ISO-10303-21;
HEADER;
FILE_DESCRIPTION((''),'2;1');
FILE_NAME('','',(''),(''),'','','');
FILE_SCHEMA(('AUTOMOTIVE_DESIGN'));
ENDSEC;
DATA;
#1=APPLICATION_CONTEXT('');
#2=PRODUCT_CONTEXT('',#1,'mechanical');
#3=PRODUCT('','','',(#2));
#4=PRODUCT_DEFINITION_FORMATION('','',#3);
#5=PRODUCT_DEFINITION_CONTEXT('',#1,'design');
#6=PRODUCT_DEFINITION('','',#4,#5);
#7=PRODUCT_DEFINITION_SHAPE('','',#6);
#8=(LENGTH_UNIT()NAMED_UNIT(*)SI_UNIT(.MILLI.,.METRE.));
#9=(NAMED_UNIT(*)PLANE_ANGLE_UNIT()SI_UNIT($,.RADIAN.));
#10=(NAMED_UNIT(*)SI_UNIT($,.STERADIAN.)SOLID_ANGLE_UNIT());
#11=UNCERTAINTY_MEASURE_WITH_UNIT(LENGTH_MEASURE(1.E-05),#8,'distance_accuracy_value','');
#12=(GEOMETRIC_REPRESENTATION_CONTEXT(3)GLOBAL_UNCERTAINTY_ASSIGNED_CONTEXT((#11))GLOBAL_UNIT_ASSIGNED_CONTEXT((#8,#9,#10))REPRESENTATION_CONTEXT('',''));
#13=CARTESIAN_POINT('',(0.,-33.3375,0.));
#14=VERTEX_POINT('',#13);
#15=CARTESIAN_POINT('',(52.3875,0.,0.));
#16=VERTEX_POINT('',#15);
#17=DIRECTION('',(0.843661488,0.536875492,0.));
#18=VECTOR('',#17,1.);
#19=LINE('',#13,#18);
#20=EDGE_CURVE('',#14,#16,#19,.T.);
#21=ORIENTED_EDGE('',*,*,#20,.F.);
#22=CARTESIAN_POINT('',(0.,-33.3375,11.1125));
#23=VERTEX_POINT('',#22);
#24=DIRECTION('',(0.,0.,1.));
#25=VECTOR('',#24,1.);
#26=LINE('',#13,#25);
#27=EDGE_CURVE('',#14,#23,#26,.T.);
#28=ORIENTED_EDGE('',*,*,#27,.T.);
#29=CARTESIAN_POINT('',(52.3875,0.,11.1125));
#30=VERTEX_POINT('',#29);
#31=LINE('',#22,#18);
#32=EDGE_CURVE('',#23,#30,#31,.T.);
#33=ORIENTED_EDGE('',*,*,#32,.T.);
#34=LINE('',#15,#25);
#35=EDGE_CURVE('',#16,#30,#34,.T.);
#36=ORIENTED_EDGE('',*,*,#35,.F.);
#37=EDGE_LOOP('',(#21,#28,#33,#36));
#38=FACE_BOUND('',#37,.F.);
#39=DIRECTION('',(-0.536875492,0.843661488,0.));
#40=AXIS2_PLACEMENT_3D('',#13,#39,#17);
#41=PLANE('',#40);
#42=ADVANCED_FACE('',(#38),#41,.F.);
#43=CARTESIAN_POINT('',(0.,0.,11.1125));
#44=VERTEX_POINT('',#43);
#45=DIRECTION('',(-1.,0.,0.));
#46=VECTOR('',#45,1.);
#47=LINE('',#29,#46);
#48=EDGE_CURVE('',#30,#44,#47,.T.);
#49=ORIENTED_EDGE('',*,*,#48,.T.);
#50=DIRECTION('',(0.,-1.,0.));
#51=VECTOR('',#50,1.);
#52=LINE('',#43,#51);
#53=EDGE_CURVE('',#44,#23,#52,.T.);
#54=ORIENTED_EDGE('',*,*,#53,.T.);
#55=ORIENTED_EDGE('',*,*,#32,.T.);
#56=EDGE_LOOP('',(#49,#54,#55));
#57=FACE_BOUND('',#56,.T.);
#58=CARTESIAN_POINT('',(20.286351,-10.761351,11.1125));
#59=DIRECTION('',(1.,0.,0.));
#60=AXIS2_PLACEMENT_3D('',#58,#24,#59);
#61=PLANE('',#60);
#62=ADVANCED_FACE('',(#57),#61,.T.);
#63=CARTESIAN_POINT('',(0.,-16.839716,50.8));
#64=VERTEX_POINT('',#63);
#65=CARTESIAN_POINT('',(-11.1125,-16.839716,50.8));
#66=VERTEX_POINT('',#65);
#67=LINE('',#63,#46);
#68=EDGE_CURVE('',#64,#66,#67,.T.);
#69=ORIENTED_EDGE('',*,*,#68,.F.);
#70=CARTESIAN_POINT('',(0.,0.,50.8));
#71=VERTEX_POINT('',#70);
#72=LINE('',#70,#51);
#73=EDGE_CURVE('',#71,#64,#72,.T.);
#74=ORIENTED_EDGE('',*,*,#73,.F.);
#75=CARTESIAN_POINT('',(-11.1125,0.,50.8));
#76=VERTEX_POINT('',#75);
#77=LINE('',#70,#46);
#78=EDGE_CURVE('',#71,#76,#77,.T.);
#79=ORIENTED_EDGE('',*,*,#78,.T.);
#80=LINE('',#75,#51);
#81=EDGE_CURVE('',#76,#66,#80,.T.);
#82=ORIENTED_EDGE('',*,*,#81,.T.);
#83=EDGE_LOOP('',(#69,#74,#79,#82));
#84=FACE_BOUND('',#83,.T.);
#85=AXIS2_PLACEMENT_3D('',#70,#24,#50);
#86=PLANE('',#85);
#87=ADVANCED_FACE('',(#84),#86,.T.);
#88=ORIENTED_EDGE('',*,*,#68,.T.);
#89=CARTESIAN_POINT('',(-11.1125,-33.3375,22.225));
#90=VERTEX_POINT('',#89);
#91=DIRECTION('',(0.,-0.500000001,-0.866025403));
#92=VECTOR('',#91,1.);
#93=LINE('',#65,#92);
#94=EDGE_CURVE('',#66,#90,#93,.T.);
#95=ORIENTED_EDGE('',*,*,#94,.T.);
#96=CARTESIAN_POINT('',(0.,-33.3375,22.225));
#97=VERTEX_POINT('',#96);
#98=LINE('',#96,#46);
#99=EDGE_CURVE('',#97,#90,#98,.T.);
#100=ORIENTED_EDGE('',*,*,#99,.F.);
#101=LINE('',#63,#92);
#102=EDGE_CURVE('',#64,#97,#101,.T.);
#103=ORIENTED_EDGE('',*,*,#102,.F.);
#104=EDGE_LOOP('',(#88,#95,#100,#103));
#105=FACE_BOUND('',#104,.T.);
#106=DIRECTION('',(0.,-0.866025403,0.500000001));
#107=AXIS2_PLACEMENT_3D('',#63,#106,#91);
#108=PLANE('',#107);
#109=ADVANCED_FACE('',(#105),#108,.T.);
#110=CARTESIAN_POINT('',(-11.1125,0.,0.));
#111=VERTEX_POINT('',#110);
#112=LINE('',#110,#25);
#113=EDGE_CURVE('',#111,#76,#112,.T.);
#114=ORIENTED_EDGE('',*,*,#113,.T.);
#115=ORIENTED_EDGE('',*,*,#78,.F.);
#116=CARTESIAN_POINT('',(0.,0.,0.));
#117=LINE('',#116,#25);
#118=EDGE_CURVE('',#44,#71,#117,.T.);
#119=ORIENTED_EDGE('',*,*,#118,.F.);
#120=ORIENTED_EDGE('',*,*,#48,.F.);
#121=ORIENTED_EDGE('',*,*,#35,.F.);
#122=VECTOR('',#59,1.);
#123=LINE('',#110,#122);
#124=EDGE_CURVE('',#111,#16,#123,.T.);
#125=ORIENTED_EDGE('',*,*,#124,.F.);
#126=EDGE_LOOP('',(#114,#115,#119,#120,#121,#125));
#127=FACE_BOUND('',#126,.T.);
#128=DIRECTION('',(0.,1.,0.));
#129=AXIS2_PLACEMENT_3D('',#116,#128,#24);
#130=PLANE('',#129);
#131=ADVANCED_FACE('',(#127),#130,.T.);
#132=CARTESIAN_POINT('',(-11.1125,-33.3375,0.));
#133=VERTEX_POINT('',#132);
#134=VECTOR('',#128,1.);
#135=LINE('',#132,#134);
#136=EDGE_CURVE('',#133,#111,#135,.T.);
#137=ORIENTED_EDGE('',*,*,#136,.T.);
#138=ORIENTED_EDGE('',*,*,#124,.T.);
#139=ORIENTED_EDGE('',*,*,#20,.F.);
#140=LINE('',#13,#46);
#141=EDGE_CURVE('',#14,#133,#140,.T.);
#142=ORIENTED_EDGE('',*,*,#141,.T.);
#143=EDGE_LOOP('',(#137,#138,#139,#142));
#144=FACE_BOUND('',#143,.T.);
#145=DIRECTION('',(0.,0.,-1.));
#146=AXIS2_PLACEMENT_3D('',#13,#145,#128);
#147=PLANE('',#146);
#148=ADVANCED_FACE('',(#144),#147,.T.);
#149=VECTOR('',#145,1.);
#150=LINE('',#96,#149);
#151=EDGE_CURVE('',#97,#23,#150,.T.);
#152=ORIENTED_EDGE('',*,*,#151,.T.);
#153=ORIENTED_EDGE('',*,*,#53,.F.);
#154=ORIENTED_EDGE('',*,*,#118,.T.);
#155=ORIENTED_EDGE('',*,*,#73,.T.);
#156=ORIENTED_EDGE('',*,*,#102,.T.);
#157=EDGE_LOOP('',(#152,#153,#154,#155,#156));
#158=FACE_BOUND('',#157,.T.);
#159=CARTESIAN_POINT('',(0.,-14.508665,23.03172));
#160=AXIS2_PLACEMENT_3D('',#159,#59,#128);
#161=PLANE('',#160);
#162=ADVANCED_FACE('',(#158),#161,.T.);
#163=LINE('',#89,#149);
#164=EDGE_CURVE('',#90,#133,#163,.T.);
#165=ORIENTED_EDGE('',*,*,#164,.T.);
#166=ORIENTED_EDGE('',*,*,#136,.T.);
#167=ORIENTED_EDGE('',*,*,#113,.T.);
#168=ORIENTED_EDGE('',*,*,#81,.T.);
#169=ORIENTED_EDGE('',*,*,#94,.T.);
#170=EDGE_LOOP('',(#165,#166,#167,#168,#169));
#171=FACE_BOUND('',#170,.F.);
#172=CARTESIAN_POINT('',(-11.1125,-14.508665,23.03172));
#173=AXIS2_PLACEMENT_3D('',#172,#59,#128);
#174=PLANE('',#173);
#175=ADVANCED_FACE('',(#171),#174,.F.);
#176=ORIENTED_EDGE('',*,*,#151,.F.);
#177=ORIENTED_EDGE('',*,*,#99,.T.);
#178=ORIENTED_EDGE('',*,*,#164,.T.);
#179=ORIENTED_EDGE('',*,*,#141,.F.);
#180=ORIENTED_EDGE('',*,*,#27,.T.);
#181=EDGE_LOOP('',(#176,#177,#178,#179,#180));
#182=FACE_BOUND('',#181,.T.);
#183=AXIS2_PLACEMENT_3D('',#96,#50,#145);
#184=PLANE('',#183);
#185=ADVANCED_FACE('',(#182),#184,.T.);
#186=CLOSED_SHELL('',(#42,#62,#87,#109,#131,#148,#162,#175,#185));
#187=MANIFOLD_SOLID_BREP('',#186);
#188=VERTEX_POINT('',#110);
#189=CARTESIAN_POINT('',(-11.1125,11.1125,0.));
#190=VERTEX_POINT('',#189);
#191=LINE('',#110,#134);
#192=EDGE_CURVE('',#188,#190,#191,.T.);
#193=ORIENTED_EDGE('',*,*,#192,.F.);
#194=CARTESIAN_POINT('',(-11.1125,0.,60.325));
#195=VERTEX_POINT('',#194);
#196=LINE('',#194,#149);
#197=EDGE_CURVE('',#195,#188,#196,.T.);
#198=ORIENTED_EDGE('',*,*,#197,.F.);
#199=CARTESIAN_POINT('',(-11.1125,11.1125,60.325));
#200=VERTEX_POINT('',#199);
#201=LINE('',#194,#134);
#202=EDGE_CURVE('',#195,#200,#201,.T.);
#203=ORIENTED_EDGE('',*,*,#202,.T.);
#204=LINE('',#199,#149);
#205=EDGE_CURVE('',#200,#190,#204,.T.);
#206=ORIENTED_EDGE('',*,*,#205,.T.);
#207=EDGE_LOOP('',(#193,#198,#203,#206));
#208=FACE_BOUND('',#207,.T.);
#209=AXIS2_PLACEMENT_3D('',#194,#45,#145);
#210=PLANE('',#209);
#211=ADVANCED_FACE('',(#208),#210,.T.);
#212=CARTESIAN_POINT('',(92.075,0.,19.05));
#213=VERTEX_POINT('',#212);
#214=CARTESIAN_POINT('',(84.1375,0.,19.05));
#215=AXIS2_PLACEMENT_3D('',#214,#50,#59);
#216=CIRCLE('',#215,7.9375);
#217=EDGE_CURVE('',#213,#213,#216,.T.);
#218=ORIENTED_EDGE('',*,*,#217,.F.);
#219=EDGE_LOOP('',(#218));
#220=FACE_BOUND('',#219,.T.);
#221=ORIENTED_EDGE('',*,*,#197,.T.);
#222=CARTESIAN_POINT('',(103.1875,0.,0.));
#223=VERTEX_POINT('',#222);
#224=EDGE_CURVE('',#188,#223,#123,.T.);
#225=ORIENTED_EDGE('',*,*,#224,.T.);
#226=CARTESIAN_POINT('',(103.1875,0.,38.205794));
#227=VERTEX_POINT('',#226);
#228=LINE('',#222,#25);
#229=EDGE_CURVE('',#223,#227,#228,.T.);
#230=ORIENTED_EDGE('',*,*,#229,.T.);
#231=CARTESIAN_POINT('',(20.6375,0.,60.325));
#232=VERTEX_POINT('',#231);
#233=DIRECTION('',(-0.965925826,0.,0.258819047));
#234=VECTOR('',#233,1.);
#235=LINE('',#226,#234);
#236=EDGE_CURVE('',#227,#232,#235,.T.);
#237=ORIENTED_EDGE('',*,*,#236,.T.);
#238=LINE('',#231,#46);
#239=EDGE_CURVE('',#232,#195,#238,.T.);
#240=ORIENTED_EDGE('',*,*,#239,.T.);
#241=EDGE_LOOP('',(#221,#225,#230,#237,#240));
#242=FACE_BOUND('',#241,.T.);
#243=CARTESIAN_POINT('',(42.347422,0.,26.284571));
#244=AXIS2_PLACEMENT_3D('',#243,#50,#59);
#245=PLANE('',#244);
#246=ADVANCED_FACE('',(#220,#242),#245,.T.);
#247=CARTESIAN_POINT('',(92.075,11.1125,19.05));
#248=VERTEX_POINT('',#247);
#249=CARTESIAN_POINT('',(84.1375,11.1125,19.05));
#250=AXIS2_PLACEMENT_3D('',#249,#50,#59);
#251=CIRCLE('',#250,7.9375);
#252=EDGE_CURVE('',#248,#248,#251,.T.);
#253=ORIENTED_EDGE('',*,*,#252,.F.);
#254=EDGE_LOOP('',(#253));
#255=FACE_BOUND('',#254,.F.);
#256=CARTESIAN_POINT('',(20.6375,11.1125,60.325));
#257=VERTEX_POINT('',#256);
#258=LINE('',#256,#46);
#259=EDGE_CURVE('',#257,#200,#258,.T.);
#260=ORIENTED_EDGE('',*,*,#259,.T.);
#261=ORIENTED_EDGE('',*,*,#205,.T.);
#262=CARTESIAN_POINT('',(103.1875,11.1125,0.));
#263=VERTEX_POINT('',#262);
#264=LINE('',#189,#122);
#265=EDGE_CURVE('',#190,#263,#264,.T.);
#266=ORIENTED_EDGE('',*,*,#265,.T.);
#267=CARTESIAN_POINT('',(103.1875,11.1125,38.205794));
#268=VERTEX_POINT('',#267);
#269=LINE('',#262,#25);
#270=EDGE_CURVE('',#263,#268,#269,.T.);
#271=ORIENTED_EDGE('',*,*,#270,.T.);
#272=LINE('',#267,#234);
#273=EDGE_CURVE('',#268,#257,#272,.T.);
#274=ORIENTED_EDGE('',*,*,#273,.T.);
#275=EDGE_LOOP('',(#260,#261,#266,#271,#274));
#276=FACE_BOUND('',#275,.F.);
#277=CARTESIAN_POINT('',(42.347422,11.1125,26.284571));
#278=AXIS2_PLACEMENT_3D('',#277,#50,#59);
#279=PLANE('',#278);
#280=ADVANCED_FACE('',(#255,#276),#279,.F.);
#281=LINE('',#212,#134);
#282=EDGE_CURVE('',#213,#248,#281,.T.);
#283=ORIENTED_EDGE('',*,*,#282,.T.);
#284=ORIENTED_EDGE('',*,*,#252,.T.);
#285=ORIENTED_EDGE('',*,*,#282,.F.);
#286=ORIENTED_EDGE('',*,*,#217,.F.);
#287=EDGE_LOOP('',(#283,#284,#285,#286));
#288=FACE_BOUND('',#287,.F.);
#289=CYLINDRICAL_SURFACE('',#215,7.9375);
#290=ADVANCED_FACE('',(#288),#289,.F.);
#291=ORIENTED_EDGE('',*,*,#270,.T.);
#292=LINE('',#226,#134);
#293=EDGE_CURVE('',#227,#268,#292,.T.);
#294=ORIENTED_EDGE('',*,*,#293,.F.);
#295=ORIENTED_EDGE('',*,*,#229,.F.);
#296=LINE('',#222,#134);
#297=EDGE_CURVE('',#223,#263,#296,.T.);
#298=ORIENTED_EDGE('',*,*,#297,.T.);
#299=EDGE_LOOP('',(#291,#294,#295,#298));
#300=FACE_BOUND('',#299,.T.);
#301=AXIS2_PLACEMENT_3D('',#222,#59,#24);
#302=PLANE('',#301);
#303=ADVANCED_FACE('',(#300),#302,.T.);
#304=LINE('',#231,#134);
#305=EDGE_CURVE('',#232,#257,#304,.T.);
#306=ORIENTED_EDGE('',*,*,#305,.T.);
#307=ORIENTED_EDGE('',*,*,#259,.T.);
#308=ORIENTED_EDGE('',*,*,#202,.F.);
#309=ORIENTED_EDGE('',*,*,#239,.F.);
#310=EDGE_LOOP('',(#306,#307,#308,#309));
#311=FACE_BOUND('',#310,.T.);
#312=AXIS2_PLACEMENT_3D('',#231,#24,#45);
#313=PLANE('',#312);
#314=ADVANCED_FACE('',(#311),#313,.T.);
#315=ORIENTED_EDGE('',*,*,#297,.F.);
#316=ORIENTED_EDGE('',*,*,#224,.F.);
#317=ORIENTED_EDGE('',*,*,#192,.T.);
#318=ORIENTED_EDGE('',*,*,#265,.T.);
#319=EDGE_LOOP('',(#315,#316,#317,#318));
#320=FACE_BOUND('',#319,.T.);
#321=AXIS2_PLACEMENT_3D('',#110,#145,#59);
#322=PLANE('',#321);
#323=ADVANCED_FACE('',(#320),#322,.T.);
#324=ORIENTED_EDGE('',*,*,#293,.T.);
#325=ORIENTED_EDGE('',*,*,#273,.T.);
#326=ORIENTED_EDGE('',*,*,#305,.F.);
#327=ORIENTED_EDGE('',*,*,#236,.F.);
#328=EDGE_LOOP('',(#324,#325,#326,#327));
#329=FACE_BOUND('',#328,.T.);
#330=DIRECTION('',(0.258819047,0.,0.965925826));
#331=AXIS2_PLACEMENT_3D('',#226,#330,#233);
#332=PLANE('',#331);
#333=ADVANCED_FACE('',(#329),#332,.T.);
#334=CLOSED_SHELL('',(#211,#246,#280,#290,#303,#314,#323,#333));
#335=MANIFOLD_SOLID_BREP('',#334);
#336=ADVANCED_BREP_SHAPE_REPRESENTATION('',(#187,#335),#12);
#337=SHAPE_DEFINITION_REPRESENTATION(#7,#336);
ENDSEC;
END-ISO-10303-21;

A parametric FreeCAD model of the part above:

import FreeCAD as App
import Part
import Sketcher
from FreeCAD import Vector
Q = App.Units.Quantity


def add_polygon(sketch, points):
    """Adds a closed chain of lines whose ends are joined by coincident constraints."""
    first, n = sketch.GeometryCount, len(points)
    for a, b in zip(points, points[1:] + points[:1]):
        sketch.addGeometry(Part.LineSegment(App.Vector(*a, 0), App.Vector(*b, 0)), False)
    for i in range(n):
        sketch.addConstraint(Sketcher.Constraint("Coincident", first + i, 2, first + (i + 1) % n, 1))

doc = App.newDocument("Part")
body = doc.addObject("PartDesign::Body", "Body")

sketch1 = body.newObject("Sketcher::SketchObject", "Sketch")
sketch1.AttachmentSupport = (doc.getObject("XY_Plane"), [""])
sketch1.MapMode = "FlatFace"
add_polygon(sketch1, [(52, 0), (0, 0), (0, -33)])
sketch1.addConstraint([
    Sketcher.Constraint("Horizontal", 0),
    Sketcher.Constraint("Vertical", 1),
    Sketcher.Constraint("Coincident", 0, 2, -1, 1),
    Sketcher.Constraint("DistanceX", 0, 2, 0, 1, Q("2.0625 in")),
    Sketcher.Constraint("DistanceY", 1, 2, 1, 1, Q("1.3125 in")),
])
pad1 = body.newObject("PartDesign::Pad", "Pad")
pad1.Profile = sketch1
pad1.Length = Q("0.4375 in")

sketch2 = body.newObject("Sketcher::SketchObject", "Sketch001")
sketch2.AttachmentSupport = (doc.getObject("YZ_Plane"), [""])
sketch2.MapMode = "FlatFace"
add_polygon(sketch2, [(-33, 0), (0, 0), (0, 51), (-17, 51), (-33, 22)])
sketch2.addConstraint([
    Sketcher.Constraint("Horizontal", 0),
    Sketcher.Constraint("Vertical", 1),
    Sketcher.Constraint("Horizontal", 2),
    Sketcher.Constraint("Vertical", 4),
    Sketcher.Constraint("Coincident", 0, 2, -1, 1),
    Sketcher.Constraint("DistanceY", 1, 1, 1, 2, Q("2 in")),
    Sketcher.Constraint("Angle", 3, Q("-120 deg")),
    Sketcher.Constraint("DistanceX", 0, 1, 0, 2, Q("1.3125 in")),
    Sketcher.Constraint("DistanceY", 4, 2, 4, 1, Q("0.875 in")),
])
pad2 = body.newObject("PartDesign::Pad", "Pad001")
pad2.Profile = sketch2
pad2.Length = Q("0.4375 in")
pad2.Reversed = True
body2 = doc.addObject("PartDesign::Body", "Body001")

sketch3 = body2.newObject("Sketcher::SketchObject", "Sketch002")
sketch3.AttachmentSupport = (doc.getObject("XZ_Plane001"), [""])
sketch3.MapMode = "FlatFace"
add_polygon(sketch3, [(21, 60), (-11, 60), (-11, 0), (103, 0), (103, 38)])
sketch3.addGeometry(Part.Circle(Vector(84, 19, 0), Vector(0, 0, 1), 8), False)
sketch3.addConstraint([
    Sketcher.Constraint("Horizontal", 0),
    Sketcher.Constraint("Vertical", 1),
    Sketcher.Constraint("Horizontal", 2),
    Sketcher.Constraint("Vertical", 3),
    Sketcher.Constraint("PointOnObject", 1, 2, -1),
    Sketcher.Constraint("Diameter", 5, Q("0.625 in")),
    Sketcher.Constraint("DistanceX", 2, 1, 2, 2, Q("4.5 in")),
    Sketcher.Constraint("Angle", 4, Q("165 deg")),
    Sketcher.Constraint("DistanceX", 0, 2, 0, 1, Q("1.25 in")),
    Sketcher.Constraint("DistanceX", 4, 2, 5, 3, Q("2.5 in")),
    Sketcher.Constraint("DistanceY", 1, 2, 1, 1, Q("2.375 in")),
    Sketcher.Constraint("DistanceY", -1, 1, 5, 3, Q("0.75 in")),
    Sketcher.Constraint("DistanceX", -1, 1, 5, 3, Q("3.3125 in")),
])
pad3 = body2.newObject("PartDesign::Pad", "Pad002")
pad3.Profile = sketch3
pad3.Length = Q("0.4375 in")
pad3.Reversed = True

doc.recompute()
